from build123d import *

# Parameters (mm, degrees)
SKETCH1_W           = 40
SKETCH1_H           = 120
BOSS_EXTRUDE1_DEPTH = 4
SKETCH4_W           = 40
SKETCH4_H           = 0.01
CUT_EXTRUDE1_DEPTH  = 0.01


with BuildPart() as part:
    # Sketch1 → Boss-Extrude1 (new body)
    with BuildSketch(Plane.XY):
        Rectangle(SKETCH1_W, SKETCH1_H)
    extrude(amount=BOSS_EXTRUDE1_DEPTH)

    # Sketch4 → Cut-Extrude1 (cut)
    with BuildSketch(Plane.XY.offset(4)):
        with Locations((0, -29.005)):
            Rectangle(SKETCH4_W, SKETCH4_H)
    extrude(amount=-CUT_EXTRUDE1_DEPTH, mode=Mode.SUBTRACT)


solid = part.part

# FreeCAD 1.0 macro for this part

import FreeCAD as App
import Part
import Sketcher

V = App.Vector


def add_polygon(sketch, points):
    """Adds a closed chain of lines whose ends are joined by coincident constraints."""
    first, n = sketch.GeometryCount, len(points)
    for a, b in zip(points, points[1:] + points[:1]):
        sketch.addGeometry(Part.LineSegment(App.Vector(*a, 0), App.Vector(*b, 0)), False)
    for i in range(n):
        sketch.addConstraint(Sketcher.Constraint("Coincident", first + i, 2, first + (i + 1) % n, 1))

doc = App.newDocument("Part")
body = doc.addObject("PartDesign::Body", "Body")

# Sketch on XY plane
sketch1 = body.newObject("Sketcher::SketchObject", "Sketch")
sketch1.AttachmentSupport = (doc.getObject("XY_Plane"), [""])
sketch1.MapMode = "FlatFace"
add_polygon(sketch1, [(-20, 60), (-20, -60), (20, -60), (20, 60)])  # lines 0-3
sketch1.addConstraint(Sketcher.Constraint("Vertical", 0))
sketch1.addConstraint(Sketcher.Constraint("Horizontal", 1))
sketch1.addConstraint(Sketcher.Constraint("Vertical", 2))
sketch1.addConstraint(Sketcher.Constraint("Horizontal", 3))
sketch1.addConstraint(Sketcher.Constraint("Symmetric", 0, 2, 2, 2, -1, 1))
sketch1.addConstraint(Sketcher.Constraint("DistanceX", 1, 1, 1, 2, 40.0))
sketch1.addConstraint(Sketcher.Constraint("DistanceY", 0, 2, 0, 1, 120.0))
pad1 = body.newObject("PartDesign::Pad", "Pad")
pad1.Profile = sketch1
pad1.Length = 4

# Sketch on XY plane
sketch2 = body.newObject("Sketcher::SketchObject", "Sketch001")
sketch2.AttachmentSupport = (doc.getObject("XY_Plane"), [""])
sketch2.MapMode = "FlatFace"
sketch2.AttachmentOffset = App.Placement(V(0, 0, 4), App.Rotation())
add_polygon(sketch2, [(-20, -29), (-20, -29.01), (20, -29.01), (20, -29)])  # lines 0-3
sketch2.addConstraint(Sketcher.Constraint("Vertical", 0))
sketch2.addConstraint(Sketcher.Constraint("Horizontal", 1))
sketch2.addConstraint(Sketcher.Constraint("Vertical", 2))
sketch2.addConstraint(Sketcher.Constraint("Horizontal", 3))
sketch2.addConstraint(Sketcher.Constraint("DistanceX", 1, 1, 1, 2, 40.0))
sketch2.addConstraint(Sketcher.Constraint("DistanceX", 0, 2, -1, 1, 20.0))
sketch2.addConstraint(Sketcher.Constraint("DistanceY", 2, 2, -1, 1, 29.0))
sketch2.addConstraint(Sketcher.Constraint("DistanceY", 0, 2, 0, 1, 0.01))
pocket1 = body.newObject("PartDesign::Pocket", "Pocket")
pocket1.Profile = sketch2
pocket1.Length = 0.01

doc.recompute()
